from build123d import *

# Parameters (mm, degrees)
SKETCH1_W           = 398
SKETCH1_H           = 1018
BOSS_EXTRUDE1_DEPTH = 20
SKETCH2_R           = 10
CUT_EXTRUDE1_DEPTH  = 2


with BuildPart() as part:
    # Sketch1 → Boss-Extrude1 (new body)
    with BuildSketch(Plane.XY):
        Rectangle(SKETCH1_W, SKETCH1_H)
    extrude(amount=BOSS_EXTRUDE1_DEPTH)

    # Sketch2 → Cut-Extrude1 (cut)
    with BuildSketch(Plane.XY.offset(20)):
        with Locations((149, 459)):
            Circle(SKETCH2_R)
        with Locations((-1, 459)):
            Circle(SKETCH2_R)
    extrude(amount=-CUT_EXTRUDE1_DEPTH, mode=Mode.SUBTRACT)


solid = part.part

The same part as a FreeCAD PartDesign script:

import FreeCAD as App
import Part
import Sketcher
from FreeCAD import Vector
Q = App.Units.Quantity

doc = App.newDocument("Part")
body = doc.addObject("PartDesign::Body", "Body")

# Sketch on XY plane
sketch1 = doc.addObject("Sketcher::SketchObject", "Sketch")
body.addObject(sketch1)
sketch1.AttachmentSupport = (doc.XY_Plane, [""])
sketch1.MapMode = "FlatFace"
sketch1.addGeometry(Part.LineSegment(Vector(-199, 509, 0), Vector(-199, -509, 0)), False)
sketch1.addGeometry(Part.LineSegment(Vector(-199, -509, 0), Vector(199, -509, 0)), False)
sketch1.addGeometry(Part.LineSegment(Vector(199, -509, 0), Vector(199, 509, 0)), False)
sketch1.addGeometry(Part.LineSegment(Vector(199, 509, 0), Vector(-199, 509, 0)), False)
sketch1.addConstraint(Sketcher.Constraint("Coincident", 0, 2, 1, 1))
sketch1.addConstraint(Sketcher.Constraint("Coincident", 1, 2, 2, 1))
sketch1.addConstraint(Sketcher.Constraint("Coincident", 2, 2, 3, 1))
sketch1.addConstraint(Sketcher.Constraint("Coincident", 3, 2, 0, 1))
sketch1.addConstraint(Sketcher.Constraint("Vertical", 0))
sketch1.addConstraint(Sketcher.Constraint("Horizontal", 1))
sketch1.addConstraint(Sketcher.Constraint("Vertical", 2))
sketch1.addConstraint(Sketcher.Constraint("Horizontal", 3))
sketch1.addConstraint(Sketcher.Constraint("Symmetric", 0, 2, 2, 2, -1, 1))
sketch1.addConstraint(Sketcher.Constraint("DistanceX", 1, 1, 1, 2, Q("398 mm")))
sketch1.addConstraint(Sketcher.Constraint("DistanceY", 0, 2, 0, 1, Q("1018 mm")))
pad1 = doc.addObject("PartDesign::Pad", "Pad")
body.addObject(pad1)
pad1.Profile = sketch1
pad1.Length = 20

# Sketch on XY plane
sketch2 = doc.addObject("Sketcher::SketchObject", "Sketch001")
body.addObject(sketch2)
sketch2.AttachmentSupport = (doc.XY_Plane, [""])
sketch2.MapMode = "FlatFace"
sketch2.AttachmentOffset = App.Placement(Vector(0, 0, 20), App.Rotation())
sketch2.addGeometry(Part.Circle(Vector(149, 459, 0), Vector(0, 0, 1), 10), False)
sketch2.addGeometry(Part.Circle(Vector(-1, 459, 0), Vector(0, 0, 1), 10), False)
sketch2.addConstraint(Sketcher.Constraint("Equal", 0, 1))
sketch2.addConstraint(Sketcher.Constraint("Horizontal", 0, 3, 1, 3))
sketch2.addConstraint(Sketcher.Constraint("Diameter", 0, Q("20 mm")))
sketch2.addConstraint(Sketcher.Constraint("DistanceX", -1, 1, 0, 3, Q("149 mm")))
sketch2.addConstraint(Sketcher.Constraint("DistanceY", -1, 1, 0, 3, Q("459 mm")))
sketch2.addConstraint(Sketcher.Constraint("DistanceX", 1, 3, -1, 1, Q("1 mm")))
pocket1 = doc.addObject("PartDesign::Pocket", "Pocket")
body.addObject(pocket1)
pocket1.Profile = sketch2
pocket1.Length = 2

doc.recompute()
